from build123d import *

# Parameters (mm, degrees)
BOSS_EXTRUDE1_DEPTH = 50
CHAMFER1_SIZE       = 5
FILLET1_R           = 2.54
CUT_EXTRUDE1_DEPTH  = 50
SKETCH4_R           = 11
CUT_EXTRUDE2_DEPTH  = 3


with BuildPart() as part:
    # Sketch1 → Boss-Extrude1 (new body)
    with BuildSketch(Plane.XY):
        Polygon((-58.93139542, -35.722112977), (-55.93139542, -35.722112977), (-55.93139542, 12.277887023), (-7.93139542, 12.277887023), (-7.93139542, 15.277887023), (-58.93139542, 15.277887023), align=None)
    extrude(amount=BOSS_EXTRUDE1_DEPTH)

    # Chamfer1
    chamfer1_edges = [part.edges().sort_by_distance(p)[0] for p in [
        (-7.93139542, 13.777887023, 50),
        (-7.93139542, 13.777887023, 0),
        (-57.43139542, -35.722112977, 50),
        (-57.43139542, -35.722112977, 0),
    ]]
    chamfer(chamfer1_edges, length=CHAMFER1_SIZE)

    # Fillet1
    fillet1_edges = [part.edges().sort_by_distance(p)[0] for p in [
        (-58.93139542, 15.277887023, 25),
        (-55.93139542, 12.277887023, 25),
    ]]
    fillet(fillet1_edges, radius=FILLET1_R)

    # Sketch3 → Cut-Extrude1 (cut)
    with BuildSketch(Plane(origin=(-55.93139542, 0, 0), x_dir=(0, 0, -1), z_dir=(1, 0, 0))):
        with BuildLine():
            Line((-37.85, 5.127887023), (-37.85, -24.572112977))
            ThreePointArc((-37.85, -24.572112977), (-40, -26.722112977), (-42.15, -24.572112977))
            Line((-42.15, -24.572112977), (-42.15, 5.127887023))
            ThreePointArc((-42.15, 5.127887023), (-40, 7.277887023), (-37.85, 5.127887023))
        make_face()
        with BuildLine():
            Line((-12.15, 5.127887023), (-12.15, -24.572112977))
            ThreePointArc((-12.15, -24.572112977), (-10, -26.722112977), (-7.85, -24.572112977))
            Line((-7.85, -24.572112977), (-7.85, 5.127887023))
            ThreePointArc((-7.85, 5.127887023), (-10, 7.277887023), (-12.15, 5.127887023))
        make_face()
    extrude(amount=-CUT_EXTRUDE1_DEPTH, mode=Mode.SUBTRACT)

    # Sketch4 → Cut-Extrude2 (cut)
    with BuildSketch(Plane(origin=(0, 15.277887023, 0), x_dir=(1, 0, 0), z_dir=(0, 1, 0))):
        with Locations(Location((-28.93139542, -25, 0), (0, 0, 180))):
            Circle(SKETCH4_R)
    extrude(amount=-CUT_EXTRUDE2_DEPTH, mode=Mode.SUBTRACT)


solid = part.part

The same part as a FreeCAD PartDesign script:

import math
import FreeCAD as App
import Part
import Sketcher

V = App.Vector
Q = App.Units.Quantity


def edges_at(feature, points):
    """Names of the edges that pass closest to the given points."""
    edges = feature.Shape.Edges
    near = lambda p: min(range(len(edges)), key=lambda i: edges[i].distToShape(Part.Vertex(*p))[0])
    return sorted({f"Edge{near(p) + 1}" for p in points})


def add_polygon(sketch, points):
    """Adds a closed chain of lines whose ends are joined by coincident constraints."""
    first, n = sketch.GeometryCount, len(points)
    for a, b in zip(points, points[1:] + points[:1]):
        sketch.addGeometry(Part.LineSegment(App.Vector(*a, 0), App.Vector(*b, 0)), False)
    for i in range(n):
        sketch.addConstraint(Sketcher.Constraint("Coincident", first + i, 2, first + (i + 1) % n, 1))

doc = App.newDocument("Part")
body = doc.addObject("PartDesign::Body", "Body")

# Sketch on XY plane
sketch1 = doc.addObject("Sketcher::SketchObject", "Sketch")
body.addObject(sketch1)
sketch1.AttachmentSupport = (doc.XY_Plane, [""])
sketch1.MapMode = "FlatFace"
add_polygon(sketch1, [(-58.9, -35.7), (-55.9, -35.7), (-55.9, 12.3), (-7.9, 12.3), (-7.9, 15.3), (-58.9, 15.3)])  # lines 0-5
sketch1.addConstraint([
    Sketcher.Constraint("Horizontal", 0),
    Sketcher.Constraint("Vertical", 1),
    Sketcher.Constraint("Horizontal", 2),
    Sketcher.Constraint("Vertical", 3),
    Sketcher.Constraint("Horizontal", 4),
    Sketcher.Constraint("Vertical", 5),
    Sketcher.Constraint("Equal", 2, 1),
    Sketcher.Constraint("Equal", 0, 3),
    Sketcher.Constraint("DistanceX", 0, 1, 0, 2, Q("3 mm")),
    Sketcher.Constraint("DistanceX", 2, 1, 2, 2, Q("48 mm")),
    Sketcher.Constraint("DistanceX", 0, 2, -1, 1, Q("55.931395 mm")),
    Sketcher.Constraint("DistanceY", 0, 2, -1, 1, Q("35.722113 mm")),
])
pad1 = doc.addObject("PartDesign::Pad", "Pad")
body.addObject(pad1)
pad1.Profile = sketch1
pad1.Length = 50
doc.recompute()

chamfer = doc.addObject("PartDesign::Chamfer", "Chamfer")
body.addObject(chamfer)
chamfer.Base = (pad1, edges_at(pad1, [
    (-7.931, 13.778, 50),
    (-7.931, 13.778, 0),
    (-57.431, -35.722, 50),
    (-57.431, -35.722, 0),
]))
chamfer.Size = 5
doc.recompute()

fillet = doc.addObject("PartDesign::Fillet", "Fillet")
body.addObject(fillet)
fillet.Base = (chamfer, edges_at(chamfer, [(-58.931, 15.278, 25), (-55.931, 12.278, 25)]))
fillet.Radius = 2.54

# Sketch on YZ plane
sketch2 = doc.addObject("Sketcher::SketchObject", "Sketch001")
body.addObject(sketch2)
sketch2.AttachmentSupport = (doc.YZ_Plane, [""])
sketch2.MapMode = "FlatFace"
sketch2.AttachmentOffset = App.Placement(V(0, 0, -55.931395), App.Rotation())
sketch2.addGeometry([
    Part.LineSegment(V(-24.6, 37.9, 0), V(5.1, 37.9, 0)),  # 0
    Part.ArcOfCircle(Part.Circle(V(5.1, 40, 0), V(0, 0, 1), 2.1), math.radians(-90), math.radians(90)),  # 1
    Part.LineSegment(V(5.1, 42.1, 0), V(-24.6, 42.1, 0)),  # 2
    Part.ArcOfCircle(Part.Circle(V(-24.6, 40, 0), V(0, 0, 1), 2.1), math.radians(90), math.radians(270)),  # 3
    Part.LineSegment(V(5.1, 12.2, 0), V(-24.6, 12.2, 0)),  # 4
    Part.ArcOfCircle(Part.Circle(V(-24.6, 10, 0), V(0, 0, 1), 2.1), math.radians(90), math.radians(270)),  # 5
    Part.LineSegment(V(-24.6, 7.8, 0), V(5.1, 7.8, 0)),  # 6
    Part.ArcOfCircle(Part.Circle(V(5.1, 10, 0), V(0, 0, 1), 2.1), math.radians(-90), math.radians(90)),  # 7
], False)
sketch2.addConstraint([
    Sketcher.Constraint("Tangent", 0, 2, 1, 1),
    Sketcher.Constraint("Tangent", 1, 2, 2, 1),
    Sketcher.Constraint("Tangent", 2, 2, 3, 1),
    Sketcher.Constraint("Tangent", 3, 2, 0, 1),
    Sketcher.Constraint("Tangent", 4, 2, 5, 1),
    Sketcher.Constraint("Tangent", 5, 2, 6, 1),
    Sketcher.Constraint("Tangent", 6, 2, 7, 1),
    Sketcher.Constraint("Tangent", 7, 2, 4, 1),
    Sketcher.Constraint("Horizontal", 0),
    Sketcher.Constraint("Horizontal", 2),
    Sketcher.Constraint("Horizontal", 4),
    Sketcher.Constraint("Horizontal", 6),
    Sketcher.Constraint("Equal", 3, 5),
    Sketcher.Constraint("Vertical", 3, 3, 5, 3),
    Sketcher.Constraint("Vertical", 1, 3, 7, 3),
    Sketcher.Constraint("Radius", 1, Q("2.15 mm")),
    Sketcher.Constraint("DistanceX", 0, 1, 0, 2, Q("29.7 mm")),
    Sketcher.Constraint("DistanceY", -1, 1, 1, 3, Q("40 mm")),
    Sketcher.Constraint("DistanceY", -1, 1, 5, 3, Q("10 mm")),
    Sketcher.Constraint("DistanceX", -1, 1, 1, 3, Q("5.127887 mm")),
])
pocket1 = doc.addObject("PartDesign::Pocket", "Pocket")
body.addObject(pocket1)
pocket1.Profile = sketch2
pocket1.Length = 50

# Sketch on XZ plane
sketch3 = doc.addObject("Sketcher::SketchObject", "Sketch002")
body.addObject(sketch3)
sketch3.AttachmentSupport = (doc.XZ_Plane, [""])
sketch3.MapMode = "FlatFace"
sketch3.AttachmentOffset = App.Placement(V(0, 0, -15.277887), App.Rotation())
sketch3.addGeometry(Part.Circle(V(-29, 25, 0), V(0, 0, 1), 11), False)
sketch3.addConstraint([
    Sketcher.Constraint("Diameter", 0, Q("22 mm")),
    Sketcher.Constraint("DistanceY", -1, 1, 0, 3, Q("25 mm")),
    Sketcher.Constraint("DistanceX", 0, 3, -1, 1, Q("28.931395 mm")),
])
pocket2 = doc.addObject("PartDesign::Pocket", "Pocket001")
body.addObject(pocket2)
pocket2.Profile = sketch3
pocket2.Length = 3
pocket2.Reversed = True

doc.recompute()
